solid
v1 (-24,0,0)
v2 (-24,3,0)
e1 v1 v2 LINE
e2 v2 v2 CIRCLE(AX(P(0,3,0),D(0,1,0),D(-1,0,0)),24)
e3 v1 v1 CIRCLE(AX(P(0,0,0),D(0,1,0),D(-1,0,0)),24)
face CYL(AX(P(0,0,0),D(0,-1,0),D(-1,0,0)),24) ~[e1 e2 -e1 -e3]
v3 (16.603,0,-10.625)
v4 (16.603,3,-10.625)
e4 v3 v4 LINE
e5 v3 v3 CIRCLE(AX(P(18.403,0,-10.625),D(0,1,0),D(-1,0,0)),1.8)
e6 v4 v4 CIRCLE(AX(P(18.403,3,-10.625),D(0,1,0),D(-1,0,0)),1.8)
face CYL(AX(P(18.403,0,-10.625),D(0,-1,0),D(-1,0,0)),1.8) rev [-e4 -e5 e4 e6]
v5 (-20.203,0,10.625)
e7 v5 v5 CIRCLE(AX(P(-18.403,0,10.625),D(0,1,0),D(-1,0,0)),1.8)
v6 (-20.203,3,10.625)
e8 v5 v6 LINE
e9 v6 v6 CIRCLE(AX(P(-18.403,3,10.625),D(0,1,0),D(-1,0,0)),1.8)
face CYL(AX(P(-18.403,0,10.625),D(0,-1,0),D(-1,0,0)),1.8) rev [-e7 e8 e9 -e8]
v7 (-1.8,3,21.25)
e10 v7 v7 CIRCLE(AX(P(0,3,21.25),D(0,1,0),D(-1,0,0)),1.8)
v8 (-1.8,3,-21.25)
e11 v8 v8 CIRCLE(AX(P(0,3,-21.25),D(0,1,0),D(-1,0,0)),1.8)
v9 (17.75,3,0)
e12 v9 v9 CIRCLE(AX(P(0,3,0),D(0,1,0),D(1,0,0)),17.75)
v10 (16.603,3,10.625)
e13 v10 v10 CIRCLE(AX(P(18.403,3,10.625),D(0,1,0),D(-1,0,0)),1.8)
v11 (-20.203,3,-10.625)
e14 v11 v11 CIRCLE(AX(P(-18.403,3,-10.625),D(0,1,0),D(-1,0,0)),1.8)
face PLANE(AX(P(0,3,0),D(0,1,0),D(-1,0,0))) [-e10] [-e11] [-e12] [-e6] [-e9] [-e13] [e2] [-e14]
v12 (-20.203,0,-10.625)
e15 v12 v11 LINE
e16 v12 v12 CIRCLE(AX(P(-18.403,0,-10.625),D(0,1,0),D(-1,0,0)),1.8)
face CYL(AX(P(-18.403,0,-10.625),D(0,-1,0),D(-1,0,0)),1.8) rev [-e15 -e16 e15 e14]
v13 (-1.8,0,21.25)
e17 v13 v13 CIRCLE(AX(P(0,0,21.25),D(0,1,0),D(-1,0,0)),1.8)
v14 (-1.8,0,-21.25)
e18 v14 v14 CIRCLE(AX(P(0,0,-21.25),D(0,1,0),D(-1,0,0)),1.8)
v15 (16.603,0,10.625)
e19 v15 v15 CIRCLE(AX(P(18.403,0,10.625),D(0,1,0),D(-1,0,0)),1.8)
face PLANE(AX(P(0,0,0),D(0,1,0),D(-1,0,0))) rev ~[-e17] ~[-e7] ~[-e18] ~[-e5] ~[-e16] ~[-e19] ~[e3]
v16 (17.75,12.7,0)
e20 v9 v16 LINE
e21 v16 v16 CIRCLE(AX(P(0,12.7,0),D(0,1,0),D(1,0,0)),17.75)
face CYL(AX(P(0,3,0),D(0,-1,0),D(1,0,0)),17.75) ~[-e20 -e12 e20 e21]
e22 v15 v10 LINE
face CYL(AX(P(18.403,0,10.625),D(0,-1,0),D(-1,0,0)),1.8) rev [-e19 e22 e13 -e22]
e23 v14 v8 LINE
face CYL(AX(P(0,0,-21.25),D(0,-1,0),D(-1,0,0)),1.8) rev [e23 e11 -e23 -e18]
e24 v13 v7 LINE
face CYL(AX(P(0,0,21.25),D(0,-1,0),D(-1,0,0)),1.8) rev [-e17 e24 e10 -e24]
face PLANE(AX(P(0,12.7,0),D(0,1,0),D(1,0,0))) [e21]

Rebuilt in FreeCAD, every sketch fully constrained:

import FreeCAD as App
import Part
import Sketcher
from FreeCAD import Vector

doc = App.newDocument("Part")
body = doc.addObject("PartDesign::Body", "Body")

sketch1 = body.newObject("Sketcher::SketchObject", "Sketch")
sketch1.AttachmentSupport = (doc.getObject("XZ_Plane"), [""])
sketch1.MapMode = "FlatFace"
sketch1.addGeometry([
    Part.Circle(Vector(0, 0, 0), Vector(0, 0, 1), 24),
    Part.Circle(Vector(18.403, -10.625, 0), Vector(0, 0, 1), 1.8),
    Part.Circle(Vector(0, -21.25, 0), Vector(0, 0, 1), 1.8),
    Part.Circle(Vector(-18.403, -10.625, 0), Vector(0, 0, 1), 1.8),
    Part.Circle(Vector(18.403, 10.625, 0), Vector(0, 0, 1), 1.8),
    Part.Circle(Vector(-18.403, 10.625, 0), Vector(0, 0, 1), 1.8),
    Part.Circle(Vector(0, 21.25, 0), Vector(0, 0, 1), 1.8),
], False)
sketch1.addConstraint([
    Sketcher.Constraint("Coincident", 0, 3, -1, 1),
    Sketcher.Constraint("Equal", 1, 2),
    Sketcher.Constraint("Equal", 2, 3),
    Sketcher.Constraint("Equal", 3, 4),
    Sketcher.Constraint("Equal", 4, 5),
    Sketcher.Constraint("Equal", 5, 6),
    Sketcher.Constraint("Symmetric", 3, 3, 4, 3, -1, 1),
    Sketcher.Constraint("Symmetric", 1, 3, 5, 3, -1, 1),
    Sketcher.Constraint("Symmetric", 2, 3, 6, 3, -1, 1),
    Sketcher.Constraint("Symmetric", 1, 3, 3, 3, -2),
    Sketcher.Constraint("PointOnObject", 2, 3, -2),
    Sketcher.Constraint("Diameter", 0, 48.0),
    Sketcher.Constraint("Diameter", 1, 3.6),
    Sketcher.Constraint("DistanceY", 2, 3, -1, 1, 21.25),
    Sketcher.Constraint("DistanceY", 1, 3, 4, 3, 21.25),
    Sketcher.Constraint("DistanceX", -1, 1, 1, 3, 18.403),
])
pad1 = body.newObject("PartDesign::Pad", "Pad")
pad1.Profile = sketch1
pad1.Length = 3
pad1.Reversed = True

sketch2 = body.newObject("Sketcher::SketchObject", "Sketch001")
sketch2.AttachmentSupport = (doc.getObject("XZ_Plane"), [""])
sketch2.MapMode = "FlatFace"
sketch2.AttachmentOffset = App.Placement(Vector(0, 0, -3), App.Rotation())
sketch2.addGeometry(Part.Circle(Vector(0, 0, 0), Vector(0, 0, 1), 17.75), False)
sketch2.addConstraint([
    Sketcher.Constraint("Coincident", 0, 3, -1, 1),
    Sketcher.Constraint("Diameter", 0, 35.5),
])
pad2 = body.newObject("PartDesign::Pad", "Pad001")
pad2.Profile = sketch2
pad2.Length = 9.7
pad2.Reversed = True

doc.recompute()
